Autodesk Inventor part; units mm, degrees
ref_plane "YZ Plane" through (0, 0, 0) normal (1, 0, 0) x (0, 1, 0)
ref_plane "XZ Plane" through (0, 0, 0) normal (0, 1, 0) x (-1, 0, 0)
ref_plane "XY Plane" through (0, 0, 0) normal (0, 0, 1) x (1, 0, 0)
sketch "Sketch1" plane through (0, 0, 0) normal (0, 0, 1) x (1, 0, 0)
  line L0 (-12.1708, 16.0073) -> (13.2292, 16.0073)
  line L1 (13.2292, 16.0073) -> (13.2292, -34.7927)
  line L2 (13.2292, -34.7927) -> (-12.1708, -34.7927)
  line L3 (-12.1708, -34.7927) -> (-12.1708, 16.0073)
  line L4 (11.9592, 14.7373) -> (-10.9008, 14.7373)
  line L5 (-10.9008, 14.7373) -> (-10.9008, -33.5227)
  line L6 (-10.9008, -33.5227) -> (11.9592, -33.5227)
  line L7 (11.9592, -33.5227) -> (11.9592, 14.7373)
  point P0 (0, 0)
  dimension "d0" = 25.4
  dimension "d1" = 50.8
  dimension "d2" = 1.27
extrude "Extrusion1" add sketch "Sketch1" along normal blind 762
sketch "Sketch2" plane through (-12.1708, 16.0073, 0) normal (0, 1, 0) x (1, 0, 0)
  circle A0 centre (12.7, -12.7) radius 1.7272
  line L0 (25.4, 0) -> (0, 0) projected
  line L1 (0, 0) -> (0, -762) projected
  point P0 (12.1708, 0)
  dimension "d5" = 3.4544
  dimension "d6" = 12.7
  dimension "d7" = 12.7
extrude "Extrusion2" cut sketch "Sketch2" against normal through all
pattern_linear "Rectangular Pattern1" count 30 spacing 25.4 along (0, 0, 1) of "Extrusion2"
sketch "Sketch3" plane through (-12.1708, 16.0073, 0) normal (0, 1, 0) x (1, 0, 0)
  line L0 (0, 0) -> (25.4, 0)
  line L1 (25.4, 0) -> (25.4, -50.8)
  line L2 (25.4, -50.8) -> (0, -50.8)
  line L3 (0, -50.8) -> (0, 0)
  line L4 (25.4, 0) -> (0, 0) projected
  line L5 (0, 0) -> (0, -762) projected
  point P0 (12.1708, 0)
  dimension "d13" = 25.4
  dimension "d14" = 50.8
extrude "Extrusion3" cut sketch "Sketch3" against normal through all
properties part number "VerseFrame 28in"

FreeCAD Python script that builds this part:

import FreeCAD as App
import Part
import Sketcher
from FreeCAD import Vector
Q = App.Units.Quantity

doc = App.newDocument("Part")
params = doc.addObject("Spreadsheet::Sheet", "Params")
for row, (alias, value) in enumerate([
    ("sketch1_width", "1 in"),
    ("sketch1_height", "2 in"),
    ("pad1_length", "30 in"),
    ("sketch2_diameter", "0.136 in"),
    ("linearpattern_pitch", "1 in"),
    ("sketch3_width", "1 in"),
    ("sketch3_height", "2 in"),
], start=1):
    params.set(f"A{row}", alias)
    params.set(f"B{row}", "=" + value)
    params.setAlias(f"B{row}", alias)

body = doc.addObject("PartDesign::Body", "Body")

sketch1 = body.newObject("Sketcher::SketchObject", "Sketch")
sketch1.AttachmentSupport = (doc.getObject("XY_Plane"), [""])
sketch1.MapMode = "FlatFace"
sketch1.addGeometry(Part.LineSegment(Vector(13.2292, 16.0073, 0), Vector(-12.1708, 16.0073, 0)), False)
sketch1.addGeometry(Part.LineSegment(Vector(-12.1708, 16.0073, 0), Vector(-12.1708, -34.7927, 0)), False)
sketch1.addGeometry(Part.LineSegment(Vector(-12.1708, -34.7927, 0), Vector(13.2292, -34.7927, 0)), False)
sketch1.addGeometry(Part.LineSegment(Vector(13.2292, -34.7927, 0), Vector(13.2292, 16.0073, 0)), False)
sketch1.addGeometry(Part.LineSegment(Vector(-10.9008, 14.7373, 0), Vector(11.9592, 14.7373, 0)), False)
sketch1.addGeometry(Part.LineSegment(Vector(11.9592, 14.7373, 0), Vector(11.9592, -33.5227, 0)), False)
sketch1.addGeometry(Part.LineSegment(Vector(11.9592, -33.5227, 0), Vector(-10.9008, -33.5227, 0)), False)
sketch1.addGeometry(Part.LineSegment(Vector(-10.9008, -33.5227, 0), Vector(-10.9008, 14.7373, 0)), False)
sketch1.addConstraint(Sketcher.Constraint("Coincident", 0, 2, 1, 1))
sketch1.addConstraint(Sketcher.Constraint("Coincident", 1, 2, 2, 1))
sketch1.addConstraint(Sketcher.Constraint("Coincident", 2, 2, 3, 1))
sketch1.addConstraint(Sketcher.Constraint("Coincident", 3, 2, 0, 1))
sketch1.addConstraint(Sketcher.Constraint("Coincident", 4, 2, 5, 1))
sketch1.addConstraint(Sketcher.Constraint("Coincident", 5, 2, 6, 1))
sketch1.addConstraint(Sketcher.Constraint("Coincident", 6, 2, 7, 1))
sketch1.addConstraint(Sketcher.Constraint("Coincident", 7, 2, 4, 1))
sketch1.addConstraint(Sketcher.Constraint("Horizontal", 0))
sketch1.addConstraint(Sketcher.Constraint("Vertical", 1))
sketch1.addConstraint(Sketcher.Constraint("Horizontal", 2))
sketch1.addConstraint(Sketcher.Constraint("Vertical", 3))
sketch1.addConstraint(Sketcher.Constraint("Horizontal", 4))
sketch1.addConstraint(Sketcher.Constraint("Vertical", 5))
sketch1.addConstraint(Sketcher.Constraint("Horizontal", 6))
sketch1.addConstraint(Sketcher.Constraint("Vertical", 7))
sketch1.addConstraint(Sketcher.Constraint("DistanceX", 0, 2, 0, 1, Q("1 in")))
sketch1.addConstraint(Sketcher.Constraint("DistanceY", 1, 2, 1, 1, Q("2 in")))
sketch1.addConstraint(Sketcher.Constraint("DistanceX", 4, 2, 3, 2, Q("0.05 in")))
sketch1.addConstraint(Sketcher.Constraint("DistanceY", 4, 2, 3, 2, Q("0.05 in")))
sketch1.addConstraint(Sketcher.Constraint("DistanceY", 2, 2, 5, 2, Q("0.05 in")))
sketch1.addConstraint(Sketcher.Constraint("DistanceX", 1, 2, 6, 2, Q("0.05 in")))
sketch1.addConstraint(Sketcher.Constraint("DistanceY", -1, 1, 0, 2, Q("0.6302 in")))
sketch1.addConstraint(Sketcher.Constraint("DistanceX", 0, 2, -1, 1, Q("12.1708 mm")))
sketch1.setExpression("Constraints[16]", "Params.sketch1_width")
sketch1.setExpression("Constraints[17]", "Params.sketch1_height")
pad1 = body.newObject("PartDesign::Pad", "Pad")
pad1.Profile = sketch1
pad1.setExpression("Length", "Params.pad1_length")

sketch2 = body.newObject("Sketcher::SketchObject", "Sketch001")
sketch2.AttachmentSupport = (doc.getObject("XZ_Plane"), [""])
sketch2.MapMode = "FlatFace"
sketch2.AttachmentOffset = App.Placement(Vector(0, 0, -0.6302087 * 25.4), App.Rotation())
sketch2.addGeometry(Part.Circle(Vector(0.5292, 12.7, 0), Vector(0, 0, 1), 1.7272), False)
sketch2.addConstraint(Sketcher.Constraint("Diameter", 0, Q("0.136 in")))
sketch2.addConstraint(Sketcher.Constraint("DistanceY", -1, 1, 0, 3, Q("0.5 in")))
sketch2.addConstraint(Sketcher.Constraint("DistanceX", -1, 1, 0, 3, Q("0.5292 mm")))
sketch2.setExpression("Constraints[0]", "Params.sketch2_diameter")
pocket1 = body.newObject("PartDesign::Pocket", "Pocket")
pocket1.Profile = sketch2
pocket1.Type = "ThroughAll"
pocket1.Reversed = True
doc.recompute()

linearpattern = body.newObject("PartDesign::LinearPattern", "LinearPattern")
linearpattern.Originals = [pocket1]
linearpattern.Direction = (doc.getObject("Z_Axis"), [""])
linearpattern.Mode = "offset"
linearpattern.setExpression("Offset", "Params.linearpattern_pitch")
linearpattern.Occurrences = 30
body.Tip = linearpattern

sketch3 = body.newObject("Sketcher::SketchObject", "Sketch002")
sketch3.AttachmentSupport = (doc.getObject("XZ_Plane"), [""])
sketch3.MapMode = "FlatFace"
sketch3.AttachmentOffset = App.Placement(Vector(0, 0, -0.6302087 * 25.4), App.Rotation())
sketch3.addGeometry(Part.LineSegment(Vector(13.2292, 0, 0), Vector(-12.1708, 0, 0)), False)
sketch3.addGeometry(Part.LineSegment(Vector(-12.1708, 0, 0), Vector(-12.1708, 50.8, 0)), False)
sketch3.addGeometry(Part.LineSegment(Vector(-12.1708, 50.8, 0), Vector(13.2292, 50.8, 0)), False)
sketch3.addGeometry(Part.LineSegment(Vector(13.2292, 50.8, 0), Vector(13.2292, 0, 0)), False)
sketch3.addConstraint(Sketcher.Constraint("Coincident", 0, 2, 1, 1))
sketch3.addConstraint(Sketcher.Constraint("Coincident", 1, 2, 2, 1))
sketch3.addConstraint(Sketcher.Constraint("Coincident", 2, 2, 3, 1))
sketch3.addConstraint(Sketcher.Constraint("Coincident", 3, 2, 0, 1))
sketch3.addConstraint(Sketcher.Constraint("Horizontal", 0))
sketch3.addConstraint(Sketcher.Constraint("Vertical", 1))
sketch3.addConstraint(Sketcher.Constraint("Horizontal", 2))
sketch3.addConstraint(Sketcher.Constraint("Vertical", 3))
sketch3.addConstraint(Sketcher.Constraint("PointOnObject", 0, 2, -1))
sketch3.addConstraint(Sketcher.Constraint("DistanceX", 0, 2, 0, 1, Q("1 in")))
sketch3.addConstraint(Sketcher.Constraint("DistanceY", 1, 1, 1, 2, Q("2 in")))
sketch3.addConstraint(Sketcher.Constraint("DistanceX", 0, 2, -1, 1, Q("12.1708 mm")))
sketch3.setExpression("Constraints[9]", "Params.sketch3_width")
sketch3.setExpression("Constraints[10]", "Params.sketch3_height")
pocket2 = body.newObject("PartDesign::Pocket", "Pocket001")
pocket2.Profile = sketch3
pocket2.Type = "ThroughAll"
pocket2.Reversed = True

doc.recompute()
